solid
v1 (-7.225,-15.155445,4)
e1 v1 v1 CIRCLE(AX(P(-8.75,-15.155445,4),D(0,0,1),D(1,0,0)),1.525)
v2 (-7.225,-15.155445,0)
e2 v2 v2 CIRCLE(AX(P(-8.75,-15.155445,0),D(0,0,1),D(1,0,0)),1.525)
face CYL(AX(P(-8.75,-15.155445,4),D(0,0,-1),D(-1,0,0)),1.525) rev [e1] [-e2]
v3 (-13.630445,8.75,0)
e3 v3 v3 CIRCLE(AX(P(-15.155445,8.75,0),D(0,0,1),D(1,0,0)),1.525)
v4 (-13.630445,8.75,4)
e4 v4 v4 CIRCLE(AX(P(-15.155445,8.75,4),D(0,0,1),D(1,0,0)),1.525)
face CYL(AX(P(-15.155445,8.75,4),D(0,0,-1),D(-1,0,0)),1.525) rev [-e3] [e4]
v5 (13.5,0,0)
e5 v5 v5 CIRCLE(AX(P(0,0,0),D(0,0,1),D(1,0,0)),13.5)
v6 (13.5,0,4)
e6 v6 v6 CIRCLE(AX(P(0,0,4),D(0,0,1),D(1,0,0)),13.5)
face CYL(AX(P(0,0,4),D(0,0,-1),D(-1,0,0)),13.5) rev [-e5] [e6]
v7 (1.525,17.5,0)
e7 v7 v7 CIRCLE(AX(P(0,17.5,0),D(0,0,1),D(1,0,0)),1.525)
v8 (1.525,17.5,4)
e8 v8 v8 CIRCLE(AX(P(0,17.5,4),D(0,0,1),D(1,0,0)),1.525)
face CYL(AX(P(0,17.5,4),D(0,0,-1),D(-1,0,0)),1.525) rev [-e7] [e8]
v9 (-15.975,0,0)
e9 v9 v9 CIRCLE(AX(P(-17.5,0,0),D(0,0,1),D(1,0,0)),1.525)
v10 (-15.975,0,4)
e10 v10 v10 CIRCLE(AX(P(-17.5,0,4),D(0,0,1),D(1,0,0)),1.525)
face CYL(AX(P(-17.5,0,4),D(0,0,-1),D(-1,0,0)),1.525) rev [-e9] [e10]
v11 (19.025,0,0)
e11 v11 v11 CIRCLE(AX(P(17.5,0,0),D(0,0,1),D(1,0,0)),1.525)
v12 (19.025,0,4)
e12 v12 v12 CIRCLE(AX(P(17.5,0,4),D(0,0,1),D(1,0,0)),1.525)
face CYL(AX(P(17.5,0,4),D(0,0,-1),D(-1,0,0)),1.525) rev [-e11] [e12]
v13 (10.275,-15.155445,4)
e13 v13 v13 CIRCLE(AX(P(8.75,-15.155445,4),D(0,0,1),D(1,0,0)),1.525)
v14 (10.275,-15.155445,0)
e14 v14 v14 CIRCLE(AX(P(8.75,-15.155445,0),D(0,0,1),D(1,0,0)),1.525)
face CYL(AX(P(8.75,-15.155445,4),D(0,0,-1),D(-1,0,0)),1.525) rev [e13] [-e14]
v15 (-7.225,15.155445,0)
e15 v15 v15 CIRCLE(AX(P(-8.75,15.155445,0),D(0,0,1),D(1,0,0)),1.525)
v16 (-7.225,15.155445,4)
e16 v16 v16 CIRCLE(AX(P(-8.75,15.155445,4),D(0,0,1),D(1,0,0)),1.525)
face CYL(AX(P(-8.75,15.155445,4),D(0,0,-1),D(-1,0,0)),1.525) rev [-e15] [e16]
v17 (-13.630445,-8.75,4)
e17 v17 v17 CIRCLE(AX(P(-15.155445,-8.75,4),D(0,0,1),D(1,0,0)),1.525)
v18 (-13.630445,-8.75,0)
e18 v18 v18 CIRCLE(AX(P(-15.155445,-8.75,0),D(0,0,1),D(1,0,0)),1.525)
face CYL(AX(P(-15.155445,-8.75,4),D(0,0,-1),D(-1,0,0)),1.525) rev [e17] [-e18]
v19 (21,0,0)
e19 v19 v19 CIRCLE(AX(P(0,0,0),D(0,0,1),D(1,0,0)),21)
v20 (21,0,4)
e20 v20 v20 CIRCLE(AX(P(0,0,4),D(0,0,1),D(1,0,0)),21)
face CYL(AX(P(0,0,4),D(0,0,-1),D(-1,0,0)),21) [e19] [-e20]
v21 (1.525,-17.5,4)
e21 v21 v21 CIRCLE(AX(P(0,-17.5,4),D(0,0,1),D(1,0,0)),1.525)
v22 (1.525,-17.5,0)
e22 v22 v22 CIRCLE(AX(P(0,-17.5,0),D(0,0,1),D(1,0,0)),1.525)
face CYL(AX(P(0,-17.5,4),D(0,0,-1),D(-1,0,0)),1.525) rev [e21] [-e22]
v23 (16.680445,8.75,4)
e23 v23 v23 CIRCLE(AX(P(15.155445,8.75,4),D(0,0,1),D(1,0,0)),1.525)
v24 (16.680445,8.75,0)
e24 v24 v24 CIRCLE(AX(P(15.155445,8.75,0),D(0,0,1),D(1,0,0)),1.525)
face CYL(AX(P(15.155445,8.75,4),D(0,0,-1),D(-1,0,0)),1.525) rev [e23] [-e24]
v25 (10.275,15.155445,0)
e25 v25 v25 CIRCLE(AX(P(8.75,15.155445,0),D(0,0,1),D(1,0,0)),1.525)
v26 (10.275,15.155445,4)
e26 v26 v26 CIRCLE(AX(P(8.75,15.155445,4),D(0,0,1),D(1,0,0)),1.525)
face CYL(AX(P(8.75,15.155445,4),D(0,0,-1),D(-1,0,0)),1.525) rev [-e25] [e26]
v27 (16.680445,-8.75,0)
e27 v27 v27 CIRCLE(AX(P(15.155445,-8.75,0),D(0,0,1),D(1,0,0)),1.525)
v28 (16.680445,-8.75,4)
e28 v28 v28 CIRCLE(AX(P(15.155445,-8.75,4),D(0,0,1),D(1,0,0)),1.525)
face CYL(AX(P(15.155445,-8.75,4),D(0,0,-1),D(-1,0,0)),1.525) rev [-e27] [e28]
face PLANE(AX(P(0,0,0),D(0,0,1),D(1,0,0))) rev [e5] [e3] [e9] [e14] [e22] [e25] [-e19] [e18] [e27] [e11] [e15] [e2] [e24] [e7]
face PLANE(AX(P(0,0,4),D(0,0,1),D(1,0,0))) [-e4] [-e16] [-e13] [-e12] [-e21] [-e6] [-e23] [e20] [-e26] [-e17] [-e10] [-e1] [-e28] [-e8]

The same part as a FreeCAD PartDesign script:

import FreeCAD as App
import Part
import Sketcher
from FreeCAD import Vector

doc = App.newDocument("Part")
body = doc.addObject("PartDesign::Body", "Body")

# Sketch on XY plane
sketch1 = body.newObject("Sketcher::SketchObject", "Sketch")
sketch1.AttachmentSupport = (doc.getObject("XY_Plane"), [""])
sketch1.MapMode = "FlatFace"
sketch1.addGeometry([
    Part.Circle(Vector(0, 0, 0), Vector(0, 0, 1), 21),  # 0
    Part.Circle(Vector(-8.8, -15.2, 0), Vector(0, 0, 1), 1.5),  # 1
    Part.Circle(Vector(-15.2, -8.8, 0), Vector(0, 0, 1), 1.5),  # 2
    Part.Circle(Vector(0, -17.5, 0), Vector(0, 0, 1), 1.5),  # 3
    Part.Circle(Vector(8.8, -15.2, 0), Vector(0, 0, 1), 1.5),  # 4
    Part.Circle(Vector(15.2, -8.8, 0), Vector(0, 0, 1), 1.5),  # 5
    Part.Circle(Vector(-17.5, 0, 0), Vector(0, 0, 1), 1.5),  # 6
    Part.Circle(Vector(-15.2, 8.8, 0), Vector(0, 0, 1), 1.5),  # 7
    Part.Circle(Vector(-8.8, 15.2, 0), Vector(0, 0, 1), 1.5),  # 8
    Part.Circle(Vector(0, 0, 0), Vector(0, 0, 1), 13.5),  # 9
    Part.Circle(Vector(17.5, 0, 0), Vector(0, 0, 1), 1.5),  # 10
    Part.Circle(Vector(15.2, 8.8, 0), Vector(0, 0, 1), 1.5),  # 11
    Part.Circle(Vector(0, 17.5, 0), Vector(0, 0, 1), 1.5),  # 12
    Part.Circle(Vector(8.8, 15.2, 0), Vector(0, 0, 1), 1.5),  # 13
], False)
sketch1.addConstraint([
    Sketcher.Constraint("Coincident", 0, 3, -1, 1),
    Sketcher.Constraint("Coincident", 9, 3, -1, 1),
    Sketcher.Constraint("Equal", 1, 2),
    Sketcher.Constraint("Equal", 2, 3),
    Sketcher.Constraint("Equal", 3, 4),
    Sketcher.Constraint("Equal", 4, 5),
    Sketcher.Constraint("Equal", 5, 6),
    Sketcher.Constraint("Equal", 6, 7),
    Sketcher.Constraint("Equal", 7, 8),
    Sketcher.Constraint("Equal", 8, 10),
    Sketcher.Constraint("Equal", 10, 11),
    Sketcher.Constraint("Equal", 11, 12),
    Sketcher.Constraint("Equal", 12, 13),
    Sketcher.Constraint("Symmetric", 5, 3, 7, 3, -1, 1),
    Sketcher.Constraint("Symmetric", 4, 3, 8, 3, -1, 1),
    Sketcher.Constraint("Symmetric", 6, 3, 10, 3, -1, 1),
    Sketcher.Constraint("Symmetric", 2, 3, 11, 3, -1, 1),
    Sketcher.Constraint("Symmetric", 3, 3, 12, 3, -1, 1),
    Sketcher.Constraint("Symmetric", 1, 3, 13, 3, -1, 1),
    Sketcher.Constraint("Symmetric", 1, 3, 4, 3, -2),
    Sketcher.Constraint("Symmetric", 2, 3, 5, 3, -2),
    Sketcher.Constraint("PointOnObject", 3, 3, -2),
    Sketcher.Constraint("PointOnObject", 6, 3, -1),
    Sketcher.Constraint("Diameter", 0, 42.0),
    Sketcher.Constraint("Diameter", 9, 27.0),
    Sketcher.Constraint("Diameter", 1, 3.05),
    Sketcher.Constraint("DistanceY", 3, 3, -1, 1, 17.5),
    Sketcher.Constraint("DistanceX", 6, 3, -1, 1, 17.5),
    Sketcher.Constraint("DistanceX", 1, 3, 4, 3, 17.5),
    Sketcher.Constraint("DistanceY", 2, 3, 7, 3, 17.5),
    Sketcher.Constraint("DistanceX", 2, 3, 5, 3, 30.310889),
    Sketcher.Constraint("DistanceY", 1, 3, 8, 3, 30.310889),
])
pad1 = body.newObject("PartDesign::Pad", "Pad")
pad1.Profile = sketch1
pad1.Length = 4

doc.recompute()
